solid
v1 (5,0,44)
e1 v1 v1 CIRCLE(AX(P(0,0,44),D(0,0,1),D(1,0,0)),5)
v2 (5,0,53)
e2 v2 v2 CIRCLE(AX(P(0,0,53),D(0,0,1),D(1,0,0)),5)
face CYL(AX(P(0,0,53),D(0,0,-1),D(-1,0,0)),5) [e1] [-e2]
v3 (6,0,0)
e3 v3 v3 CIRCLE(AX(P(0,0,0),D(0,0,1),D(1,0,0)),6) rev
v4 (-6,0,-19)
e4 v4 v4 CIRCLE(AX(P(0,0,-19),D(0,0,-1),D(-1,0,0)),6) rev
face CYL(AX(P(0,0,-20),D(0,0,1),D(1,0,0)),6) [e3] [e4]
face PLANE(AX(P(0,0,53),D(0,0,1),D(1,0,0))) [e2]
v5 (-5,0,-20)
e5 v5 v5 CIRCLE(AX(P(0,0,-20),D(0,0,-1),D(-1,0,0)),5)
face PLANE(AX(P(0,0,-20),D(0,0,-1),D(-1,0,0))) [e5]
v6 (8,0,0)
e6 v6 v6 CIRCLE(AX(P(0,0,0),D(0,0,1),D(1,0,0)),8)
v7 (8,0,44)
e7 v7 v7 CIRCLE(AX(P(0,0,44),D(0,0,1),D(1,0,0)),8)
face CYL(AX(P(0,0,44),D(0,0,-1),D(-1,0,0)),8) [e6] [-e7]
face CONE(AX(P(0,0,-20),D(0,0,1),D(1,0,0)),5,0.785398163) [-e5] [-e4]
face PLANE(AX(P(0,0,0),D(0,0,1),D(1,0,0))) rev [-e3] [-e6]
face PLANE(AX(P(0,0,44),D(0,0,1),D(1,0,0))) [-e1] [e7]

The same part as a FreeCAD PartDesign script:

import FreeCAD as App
import Part
import Sketcher

V = App.Vector
Q = App.Units.Quantity


def edges_at(feature, points):
    """Names of the edges that pass closest to the given points."""
    edges = feature.Shape.Edges
    near = lambda p: min(range(len(edges)), key=lambda i: edges[i].distToShape(Part.Vertex(*p))[0])
    return sorted({f"Edge{near(p) + 1}" for p in points})

doc = App.newDocument("Part")
params = doc.addObject("Spreadsheet::Sheet", "Params")
for row, (alias, value) in enumerate([
    ("sketch1_diameter", "16 mm"),
    ("pad1_length", "44 mm"),
    ("sketch2_diameter", "10 mm"),
    ("pad2_length", "9 mm"),
    ("sketch3_diameter", "12 mm"),
    ("pad3_length", "20 mm"),
    ("chamfer_size", "1 mm"),
], start=1):
    params.set(f"A{row}", alias)
    params.set(f"B{row}", "=" + value)
    params.setAlias(f"B{row}", alias)

body = doc.addObject("PartDesign::Body", "Body")

# Sketch on XY plane
sketch1 = body.newObject("Sketcher::SketchObject", "Sketch")
sketch1.AttachmentSupport = (doc.getObject("XY_Plane"), [""])
sketch1.MapMode = "FlatFace"
sketch1.addGeometry(Part.Circle(V(0, 0, 0), V(0, 0, 1), 8), False)
sketch1.addConstraint(Sketcher.Constraint("Coincident", 0, 3, -1, 1))
sketch1.addConstraint(Sketcher.Constraint("Diameter", 0, Q("16 mm")))
sketch1.setExpression("Constraints[1]", "Params.sketch1_diameter")
pad1 = body.newObject("PartDesign::Pad", "Pad")
pad1.Profile = sketch1
pad1.setExpression("Length", "Params.pad1_length")

# Sketch on XY plane
sketch2 = body.newObject("Sketcher::SketchObject", "Sketch001")
sketch2.AttachmentSupport = (doc.getObject("XY_Plane"), [""])
sketch2.MapMode = "FlatFace"
sketch2.AttachmentOffset = App.Placement(V(0, 0, 44), App.Rotation())
sketch2.addGeometry(Part.Circle(V(0, 0, 0), V(0, 0, 1), 5), False)
sketch2.addConstraint(Sketcher.Constraint("Coincident", 0, 3, -1, 1))
sketch2.addConstraint(Sketcher.Constraint("Diameter", 0, Q("10 mm")))
sketch2.setExpression("Constraints[1]", "Params.sketch2_diameter")
pad2 = body.newObject("PartDesign::Pad", "Pad001")
pad2.Profile = sketch2
pad2.setExpression("Length", "Params.pad2_length")

# Sketch on XY plane
sketch3 = body.newObject("Sketcher::SketchObject", "Sketch002")
sketch3.AttachmentSupport = (doc.getObject("XY_Plane"), [""])
sketch3.MapMode = "FlatFace"
sketch3.addGeometry(Part.Circle(V(0, 0, 0), V(0, 0, 1), 6), False)
sketch3.addConstraint(Sketcher.Constraint("Coincident", 0, 3, -1, 1))
sketch3.addConstraint(Sketcher.Constraint("Diameter", 0, Q("12 mm")))
sketch3.setExpression("Constraints[1]", "Params.sketch3_diameter")
pad3 = body.newObject("PartDesign::Pad", "Pad002")
pad3.Profile = sketch3
pad3.setExpression("Length", "Params.pad3_length")
pad3.Reversed = True
doc.recompute()

chamfer = body.newObject("PartDesign::Chamfer", "Chamfer")
chamfer.Base = (pad3, edges_at(pad3, [(-6, 0, -20)]))
chamfer.setExpression("Size", "Params.chamfer_size")

doc.recompute()
